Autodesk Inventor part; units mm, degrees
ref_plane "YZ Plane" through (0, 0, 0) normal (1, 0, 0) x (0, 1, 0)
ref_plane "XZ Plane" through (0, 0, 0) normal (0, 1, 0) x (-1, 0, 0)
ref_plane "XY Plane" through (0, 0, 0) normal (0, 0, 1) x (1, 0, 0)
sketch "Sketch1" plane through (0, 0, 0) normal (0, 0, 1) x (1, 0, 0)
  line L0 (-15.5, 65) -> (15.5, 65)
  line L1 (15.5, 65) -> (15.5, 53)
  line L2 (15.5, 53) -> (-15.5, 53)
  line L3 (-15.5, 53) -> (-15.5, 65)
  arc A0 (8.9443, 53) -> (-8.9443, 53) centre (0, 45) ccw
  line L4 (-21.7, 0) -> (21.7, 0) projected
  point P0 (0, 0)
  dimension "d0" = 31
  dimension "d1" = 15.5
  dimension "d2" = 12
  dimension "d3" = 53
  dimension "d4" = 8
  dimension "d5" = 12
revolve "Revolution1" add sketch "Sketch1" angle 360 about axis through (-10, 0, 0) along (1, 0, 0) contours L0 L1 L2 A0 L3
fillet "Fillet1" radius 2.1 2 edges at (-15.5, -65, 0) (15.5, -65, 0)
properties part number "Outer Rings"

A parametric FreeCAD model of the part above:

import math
import FreeCAD as App
import Part
import Sketcher


def edges_at(feature, points):
    """Names of the edges that pass closest to the given points."""
    edges = feature.Shape.Edges
    near = lambda p: min(range(len(edges)), key=lambda i: edges[i].distToShape(Part.Vertex(*p))[0])
    return sorted({f"Edge{near(p) + 1}" for p in points})

doc = App.newDocument("Part")
body = doc.addObject("PartDesign::Body", "Body")

# Sketch on XY plane
sketch1 = body.newObject("Sketcher::SketchObject", "Sketch")
sketch1.AttachmentSupport = (doc.getObject("XY_Plane"), [""])
sketch1.MapMode = "FlatFace"
sketch1.addGeometry(Part.LineSegment(App.Vector(16, 65, 0), App.Vector(-16, 65, 0)), False)
sketch1.addGeometry(Part.LineSegment(App.Vector(-16, 65, 0), App.Vector(-16, 53, 0)), False)
sketch1.addGeometry(Part.LineSegment(App.Vector(-16, 53, 0), App.Vector(-9, 53, 0)), False)
sketch1.addGeometry(Part.ArcOfCircle(Part.Circle(App.Vector(0, 45, 0), App.Vector(0, 0, 1), 12), math.radians(42), math.radians(138)), False)
sketch1.addGeometry(Part.LineSegment(App.Vector(9, 53, 0), App.Vector(16, 53, 0)), False)
sketch1.addGeometry(Part.LineSegment(App.Vector(16, 53, 0), App.Vector(16, 65, 0)), False)
sketch1.addConstraint(Sketcher.Constraint("Coincident", 0, 2, 1, 1))
sketch1.addConstraint(Sketcher.Constraint("Coincident", 1, 2, 2, 1))
sketch1.addConstraint(Sketcher.Constraint("Coincident", 2, 2, 3, 2))
sketch1.addConstraint(Sketcher.Constraint("Coincident", 3, 1, 4, 1))
sketch1.addConstraint(Sketcher.Constraint("Coincident", 4, 2, 5, 1))
sketch1.addConstraint(Sketcher.Constraint("Coincident", 5, 2, 0, 1))
sketch1.addConstraint(Sketcher.Constraint("Horizontal", 0))
sketch1.addConstraint(Sketcher.Constraint("Vertical", 1))
sketch1.addConstraint(Sketcher.Constraint("Horizontal", 2))
sketch1.addConstraint(Sketcher.Constraint("Horizontal", 4))
sketch1.addConstraint(Sketcher.Constraint("Vertical", 5))
sketch1.addConstraint(Sketcher.Constraint("Symmetric", 2, 2, 3, 1, -2))
sketch1.addConstraint(Sketcher.Constraint("Equal", 2, 4))
sketch1.addConstraint(Sketcher.Constraint("Radius", 3, 12.0))
sketch1.addConstraint(Sketcher.Constraint("DistanceX", 0, 2, 0, 1, 31.0))
sketch1.addConstraint(Sketcher.Constraint("DistanceY", 1, 2, 1, 1, 12.0))
sketch1.addConstraint(Sketcher.Constraint("DistanceY", -1, 1, 1, 2, 53.0))
sketch1.addConstraint(Sketcher.Constraint("DistanceY", 3, 3, 1, 2, 8.0))
revolution = body.newObject("PartDesign::Revolution", "Revolution")
revolution.Profile = sketch1
revolution.ReferenceAxis = (sketch1, ["H_Axis"])
revolution.Angle = 360
doc.recompute()

fillet = body.newObject("PartDesign::Fillet", "Fillet")
fillet.Base = (revolution, edges_at(revolution, [(-15.5, -65, 0), (15.5, -65, 0)]))
fillet.Radius = 2.1

doc.recompute()
